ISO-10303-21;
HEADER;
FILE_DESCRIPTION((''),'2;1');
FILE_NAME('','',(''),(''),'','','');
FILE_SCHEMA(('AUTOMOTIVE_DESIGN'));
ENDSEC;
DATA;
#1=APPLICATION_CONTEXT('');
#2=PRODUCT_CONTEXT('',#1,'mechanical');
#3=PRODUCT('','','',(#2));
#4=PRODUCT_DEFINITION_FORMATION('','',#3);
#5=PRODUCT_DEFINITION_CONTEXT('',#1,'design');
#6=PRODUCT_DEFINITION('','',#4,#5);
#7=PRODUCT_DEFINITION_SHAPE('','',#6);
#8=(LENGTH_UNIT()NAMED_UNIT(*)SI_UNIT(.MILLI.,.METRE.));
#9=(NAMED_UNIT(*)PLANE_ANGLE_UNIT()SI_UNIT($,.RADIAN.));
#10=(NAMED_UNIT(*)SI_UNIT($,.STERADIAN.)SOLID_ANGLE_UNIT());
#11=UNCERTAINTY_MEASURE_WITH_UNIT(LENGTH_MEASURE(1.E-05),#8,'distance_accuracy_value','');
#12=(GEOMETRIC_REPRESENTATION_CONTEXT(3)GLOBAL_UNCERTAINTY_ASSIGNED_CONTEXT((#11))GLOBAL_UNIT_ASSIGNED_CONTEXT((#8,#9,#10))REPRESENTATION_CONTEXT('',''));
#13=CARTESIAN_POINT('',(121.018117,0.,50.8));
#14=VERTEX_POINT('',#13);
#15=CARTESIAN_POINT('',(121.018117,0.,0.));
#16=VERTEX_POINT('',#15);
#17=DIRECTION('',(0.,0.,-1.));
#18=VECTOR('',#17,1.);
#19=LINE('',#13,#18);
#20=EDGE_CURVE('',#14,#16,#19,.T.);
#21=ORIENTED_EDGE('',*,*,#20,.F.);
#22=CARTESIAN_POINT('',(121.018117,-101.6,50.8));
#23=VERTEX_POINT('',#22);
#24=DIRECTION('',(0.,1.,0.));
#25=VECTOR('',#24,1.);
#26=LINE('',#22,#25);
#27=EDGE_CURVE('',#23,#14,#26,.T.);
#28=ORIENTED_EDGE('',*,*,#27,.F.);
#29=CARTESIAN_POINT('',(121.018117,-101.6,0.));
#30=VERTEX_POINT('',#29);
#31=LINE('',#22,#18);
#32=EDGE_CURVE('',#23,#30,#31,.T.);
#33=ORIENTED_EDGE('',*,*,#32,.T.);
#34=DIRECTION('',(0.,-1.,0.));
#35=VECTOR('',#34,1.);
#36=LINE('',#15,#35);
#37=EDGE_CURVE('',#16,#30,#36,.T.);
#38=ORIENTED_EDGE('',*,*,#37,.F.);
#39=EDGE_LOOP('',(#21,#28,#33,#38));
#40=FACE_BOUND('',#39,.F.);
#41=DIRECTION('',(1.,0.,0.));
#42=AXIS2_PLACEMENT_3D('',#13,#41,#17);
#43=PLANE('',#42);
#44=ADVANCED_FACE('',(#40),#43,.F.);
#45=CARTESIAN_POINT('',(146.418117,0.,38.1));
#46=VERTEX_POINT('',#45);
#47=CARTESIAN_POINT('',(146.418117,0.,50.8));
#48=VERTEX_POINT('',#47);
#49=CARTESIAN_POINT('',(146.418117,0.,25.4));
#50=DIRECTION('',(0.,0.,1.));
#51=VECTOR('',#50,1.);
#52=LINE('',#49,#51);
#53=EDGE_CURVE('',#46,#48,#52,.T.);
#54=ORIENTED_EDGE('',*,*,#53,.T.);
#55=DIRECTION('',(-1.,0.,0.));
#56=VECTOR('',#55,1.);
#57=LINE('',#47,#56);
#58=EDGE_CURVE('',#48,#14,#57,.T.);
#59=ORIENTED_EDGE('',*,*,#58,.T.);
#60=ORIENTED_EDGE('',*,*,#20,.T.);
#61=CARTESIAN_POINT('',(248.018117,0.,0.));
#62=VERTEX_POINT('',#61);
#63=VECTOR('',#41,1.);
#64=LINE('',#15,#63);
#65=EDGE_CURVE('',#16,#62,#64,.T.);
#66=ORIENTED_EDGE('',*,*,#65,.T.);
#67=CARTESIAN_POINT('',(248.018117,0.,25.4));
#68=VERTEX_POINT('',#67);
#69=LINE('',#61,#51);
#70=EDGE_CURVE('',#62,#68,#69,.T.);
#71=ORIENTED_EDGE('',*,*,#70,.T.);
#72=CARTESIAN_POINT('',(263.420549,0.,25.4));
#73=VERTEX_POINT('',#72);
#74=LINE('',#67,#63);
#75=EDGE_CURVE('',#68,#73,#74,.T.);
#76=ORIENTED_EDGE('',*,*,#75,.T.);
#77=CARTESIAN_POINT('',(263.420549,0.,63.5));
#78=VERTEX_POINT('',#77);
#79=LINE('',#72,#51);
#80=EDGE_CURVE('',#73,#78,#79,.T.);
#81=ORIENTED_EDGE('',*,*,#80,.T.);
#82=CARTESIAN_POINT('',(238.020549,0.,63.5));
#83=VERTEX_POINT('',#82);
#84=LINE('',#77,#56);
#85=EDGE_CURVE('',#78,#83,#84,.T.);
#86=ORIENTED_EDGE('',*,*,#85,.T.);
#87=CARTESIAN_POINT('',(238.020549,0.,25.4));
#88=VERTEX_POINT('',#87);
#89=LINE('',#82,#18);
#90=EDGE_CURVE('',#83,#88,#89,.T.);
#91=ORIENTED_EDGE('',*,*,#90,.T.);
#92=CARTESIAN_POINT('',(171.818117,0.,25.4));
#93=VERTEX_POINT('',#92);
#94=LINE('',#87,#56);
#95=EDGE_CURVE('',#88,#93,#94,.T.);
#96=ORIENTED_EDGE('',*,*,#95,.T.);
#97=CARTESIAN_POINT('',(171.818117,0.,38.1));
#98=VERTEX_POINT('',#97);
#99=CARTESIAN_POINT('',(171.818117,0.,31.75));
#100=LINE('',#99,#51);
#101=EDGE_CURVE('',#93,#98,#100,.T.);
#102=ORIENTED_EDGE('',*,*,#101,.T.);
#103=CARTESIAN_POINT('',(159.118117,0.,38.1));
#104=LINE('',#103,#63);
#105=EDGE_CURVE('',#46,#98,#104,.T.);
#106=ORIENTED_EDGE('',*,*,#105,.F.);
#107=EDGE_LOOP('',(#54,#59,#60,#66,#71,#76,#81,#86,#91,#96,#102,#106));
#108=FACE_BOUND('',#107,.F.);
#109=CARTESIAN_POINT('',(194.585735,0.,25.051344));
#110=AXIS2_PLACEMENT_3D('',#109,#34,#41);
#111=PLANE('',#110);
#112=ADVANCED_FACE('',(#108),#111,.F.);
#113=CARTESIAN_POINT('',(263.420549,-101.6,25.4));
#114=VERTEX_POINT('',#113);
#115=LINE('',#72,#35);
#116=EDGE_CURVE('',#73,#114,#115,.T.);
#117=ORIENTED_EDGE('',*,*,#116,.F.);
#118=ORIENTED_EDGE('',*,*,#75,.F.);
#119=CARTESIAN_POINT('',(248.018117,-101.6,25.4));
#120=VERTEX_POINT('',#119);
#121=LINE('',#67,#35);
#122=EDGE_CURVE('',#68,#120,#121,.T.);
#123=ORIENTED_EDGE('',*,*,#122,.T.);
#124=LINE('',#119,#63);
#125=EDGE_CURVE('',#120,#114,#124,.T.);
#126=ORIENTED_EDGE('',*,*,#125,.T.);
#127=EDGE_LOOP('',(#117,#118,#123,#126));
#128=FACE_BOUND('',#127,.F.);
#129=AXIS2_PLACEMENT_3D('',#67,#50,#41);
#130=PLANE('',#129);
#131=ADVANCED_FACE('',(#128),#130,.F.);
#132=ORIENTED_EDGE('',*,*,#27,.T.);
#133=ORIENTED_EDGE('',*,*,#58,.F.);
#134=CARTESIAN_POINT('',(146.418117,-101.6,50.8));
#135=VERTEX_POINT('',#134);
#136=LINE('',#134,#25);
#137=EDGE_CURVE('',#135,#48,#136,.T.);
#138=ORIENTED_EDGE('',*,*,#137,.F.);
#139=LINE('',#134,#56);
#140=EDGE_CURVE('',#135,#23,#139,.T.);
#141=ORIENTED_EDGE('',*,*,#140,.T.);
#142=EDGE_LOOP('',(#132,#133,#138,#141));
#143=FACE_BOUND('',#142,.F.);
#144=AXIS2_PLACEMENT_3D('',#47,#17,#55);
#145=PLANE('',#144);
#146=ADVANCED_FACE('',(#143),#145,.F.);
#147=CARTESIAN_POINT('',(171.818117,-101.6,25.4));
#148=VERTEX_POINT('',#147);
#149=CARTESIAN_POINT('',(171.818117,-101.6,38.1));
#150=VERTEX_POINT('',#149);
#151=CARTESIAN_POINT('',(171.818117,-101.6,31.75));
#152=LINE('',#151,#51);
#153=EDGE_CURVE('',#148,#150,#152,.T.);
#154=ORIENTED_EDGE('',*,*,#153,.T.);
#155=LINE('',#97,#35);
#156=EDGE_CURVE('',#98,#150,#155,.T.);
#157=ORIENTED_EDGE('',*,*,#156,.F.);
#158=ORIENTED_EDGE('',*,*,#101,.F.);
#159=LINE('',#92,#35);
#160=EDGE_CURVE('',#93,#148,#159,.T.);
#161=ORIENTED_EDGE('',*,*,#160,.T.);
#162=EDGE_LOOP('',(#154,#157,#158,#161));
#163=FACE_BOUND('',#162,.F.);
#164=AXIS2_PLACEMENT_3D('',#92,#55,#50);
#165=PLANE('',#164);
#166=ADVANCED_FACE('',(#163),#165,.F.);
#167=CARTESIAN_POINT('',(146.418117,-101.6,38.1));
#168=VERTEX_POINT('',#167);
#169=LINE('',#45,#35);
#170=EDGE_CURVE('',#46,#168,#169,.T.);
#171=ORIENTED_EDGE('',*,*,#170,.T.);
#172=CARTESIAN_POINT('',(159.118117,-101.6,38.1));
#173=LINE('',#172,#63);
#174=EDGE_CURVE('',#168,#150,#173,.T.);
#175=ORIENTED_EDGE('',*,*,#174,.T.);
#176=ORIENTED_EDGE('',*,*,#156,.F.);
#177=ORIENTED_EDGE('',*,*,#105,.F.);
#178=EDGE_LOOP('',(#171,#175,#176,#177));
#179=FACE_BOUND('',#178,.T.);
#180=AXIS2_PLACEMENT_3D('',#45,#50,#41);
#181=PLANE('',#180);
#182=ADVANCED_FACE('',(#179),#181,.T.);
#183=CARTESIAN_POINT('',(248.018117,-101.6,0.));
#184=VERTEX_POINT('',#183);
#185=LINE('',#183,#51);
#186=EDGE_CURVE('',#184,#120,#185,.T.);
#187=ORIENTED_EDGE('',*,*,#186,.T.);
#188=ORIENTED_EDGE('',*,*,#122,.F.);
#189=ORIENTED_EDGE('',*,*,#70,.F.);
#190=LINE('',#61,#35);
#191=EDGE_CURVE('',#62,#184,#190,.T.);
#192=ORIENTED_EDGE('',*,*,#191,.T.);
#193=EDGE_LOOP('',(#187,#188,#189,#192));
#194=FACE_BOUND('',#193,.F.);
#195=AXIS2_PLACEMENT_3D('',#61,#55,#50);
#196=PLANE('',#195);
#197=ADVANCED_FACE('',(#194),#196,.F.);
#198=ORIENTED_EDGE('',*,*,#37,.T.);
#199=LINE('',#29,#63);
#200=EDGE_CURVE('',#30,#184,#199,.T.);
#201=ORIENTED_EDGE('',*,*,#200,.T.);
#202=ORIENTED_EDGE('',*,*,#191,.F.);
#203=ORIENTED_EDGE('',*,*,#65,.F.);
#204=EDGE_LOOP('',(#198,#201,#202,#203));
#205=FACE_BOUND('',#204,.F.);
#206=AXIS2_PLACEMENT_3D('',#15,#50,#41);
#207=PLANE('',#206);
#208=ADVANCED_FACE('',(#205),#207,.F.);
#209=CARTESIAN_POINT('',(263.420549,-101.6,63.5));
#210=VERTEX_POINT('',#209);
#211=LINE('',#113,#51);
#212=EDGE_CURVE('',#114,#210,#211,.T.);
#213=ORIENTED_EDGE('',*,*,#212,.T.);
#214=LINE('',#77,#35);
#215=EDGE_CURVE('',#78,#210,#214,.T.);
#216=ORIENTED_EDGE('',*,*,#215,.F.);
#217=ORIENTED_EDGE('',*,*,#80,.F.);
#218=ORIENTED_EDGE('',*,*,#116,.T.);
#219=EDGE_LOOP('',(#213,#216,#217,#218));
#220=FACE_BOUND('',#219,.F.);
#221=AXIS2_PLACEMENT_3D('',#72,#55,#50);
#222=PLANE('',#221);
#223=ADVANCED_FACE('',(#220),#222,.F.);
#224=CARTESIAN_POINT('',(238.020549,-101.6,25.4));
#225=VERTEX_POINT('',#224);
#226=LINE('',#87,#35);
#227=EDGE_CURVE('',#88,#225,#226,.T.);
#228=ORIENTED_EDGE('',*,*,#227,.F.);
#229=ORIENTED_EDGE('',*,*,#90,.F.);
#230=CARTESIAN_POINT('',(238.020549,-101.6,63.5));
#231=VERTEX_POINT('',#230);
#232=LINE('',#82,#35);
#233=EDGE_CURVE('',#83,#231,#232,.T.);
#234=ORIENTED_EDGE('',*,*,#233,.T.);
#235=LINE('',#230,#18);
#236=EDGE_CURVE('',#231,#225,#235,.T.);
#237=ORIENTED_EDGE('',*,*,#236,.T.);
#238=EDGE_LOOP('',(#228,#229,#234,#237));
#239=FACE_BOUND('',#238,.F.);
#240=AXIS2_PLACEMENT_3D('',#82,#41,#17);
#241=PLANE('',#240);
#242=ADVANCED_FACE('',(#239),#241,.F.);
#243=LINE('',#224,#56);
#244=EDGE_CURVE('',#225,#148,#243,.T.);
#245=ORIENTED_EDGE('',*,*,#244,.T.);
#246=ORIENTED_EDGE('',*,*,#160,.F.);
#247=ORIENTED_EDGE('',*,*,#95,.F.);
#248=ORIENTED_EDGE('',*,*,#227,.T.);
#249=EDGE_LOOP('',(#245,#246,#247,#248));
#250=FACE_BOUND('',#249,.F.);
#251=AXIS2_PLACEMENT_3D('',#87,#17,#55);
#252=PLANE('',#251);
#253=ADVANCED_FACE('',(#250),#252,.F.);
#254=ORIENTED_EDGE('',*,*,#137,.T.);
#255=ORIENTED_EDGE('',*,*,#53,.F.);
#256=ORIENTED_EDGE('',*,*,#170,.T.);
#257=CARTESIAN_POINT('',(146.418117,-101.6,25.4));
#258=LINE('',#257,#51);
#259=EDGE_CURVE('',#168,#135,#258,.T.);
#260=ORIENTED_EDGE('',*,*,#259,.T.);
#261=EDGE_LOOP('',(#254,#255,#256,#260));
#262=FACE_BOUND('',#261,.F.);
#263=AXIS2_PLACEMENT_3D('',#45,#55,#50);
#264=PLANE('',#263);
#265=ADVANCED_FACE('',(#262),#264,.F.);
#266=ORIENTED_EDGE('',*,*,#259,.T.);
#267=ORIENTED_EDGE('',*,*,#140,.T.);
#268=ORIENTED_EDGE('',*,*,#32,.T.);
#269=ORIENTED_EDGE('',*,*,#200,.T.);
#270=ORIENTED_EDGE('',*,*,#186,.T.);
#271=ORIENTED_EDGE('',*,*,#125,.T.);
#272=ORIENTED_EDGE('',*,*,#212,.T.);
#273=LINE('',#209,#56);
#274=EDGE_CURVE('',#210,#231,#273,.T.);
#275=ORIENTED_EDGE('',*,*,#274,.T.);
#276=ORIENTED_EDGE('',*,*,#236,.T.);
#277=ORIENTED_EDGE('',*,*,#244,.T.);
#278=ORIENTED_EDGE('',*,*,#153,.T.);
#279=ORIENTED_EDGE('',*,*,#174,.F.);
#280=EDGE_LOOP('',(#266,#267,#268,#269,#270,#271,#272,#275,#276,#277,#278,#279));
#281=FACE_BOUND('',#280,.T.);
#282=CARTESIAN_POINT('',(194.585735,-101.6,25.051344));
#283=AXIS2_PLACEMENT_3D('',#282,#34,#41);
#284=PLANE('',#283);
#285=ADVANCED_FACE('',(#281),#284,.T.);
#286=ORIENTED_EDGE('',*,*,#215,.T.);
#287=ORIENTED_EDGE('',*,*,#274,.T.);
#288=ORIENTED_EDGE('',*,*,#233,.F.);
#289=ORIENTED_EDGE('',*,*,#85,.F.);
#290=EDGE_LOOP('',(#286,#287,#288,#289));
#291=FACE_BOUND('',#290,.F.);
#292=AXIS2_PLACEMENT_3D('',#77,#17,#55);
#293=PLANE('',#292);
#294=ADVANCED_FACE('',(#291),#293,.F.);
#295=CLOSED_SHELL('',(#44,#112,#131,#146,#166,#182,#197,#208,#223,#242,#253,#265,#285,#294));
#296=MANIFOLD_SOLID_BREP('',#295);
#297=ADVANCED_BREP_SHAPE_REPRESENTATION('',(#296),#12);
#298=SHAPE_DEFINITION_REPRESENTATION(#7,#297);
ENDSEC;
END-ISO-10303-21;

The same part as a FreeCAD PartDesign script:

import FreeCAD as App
import Part
import Sketcher
from FreeCAD import Vector
Q = App.Units.Quantity


def add_polygon(sketch, points):
    """Adds a closed chain of lines whose ends are joined by coincident constraints."""
    first, n = sketch.GeometryCount, len(points)
    for a, b in zip(points, points[1:] + points[:1]):
        sketch.addGeometry(Part.LineSegment(App.Vector(*a, 0), App.Vector(*b, 0)), False)
    for i in range(n):
        sketch.addConstraint(Sketcher.Constraint("Coincident", first + i, 2, first + (i + 1) % n, 1))

doc = App.newDocument("Part")
body = doc.addObject("PartDesign::Body", "Body")

sketch1 = body.newObject("Sketcher::SketchObject", "Sketch")
sketch1.AttachmentSupport = (doc.getObject("XZ_Plane"), [""])
sketch1.MapMode = "FlatFace"
add_polygon(sketch1, [(121, 51), (121, 0), (248, 0), (248, 25), (263, 25), (263, 64), (238, 64), (238, 25), (172, 25), (172, 38), (146, 38), (146, 51)])
sketch1.addConstraint([
    Sketcher.Constraint("Vertical", 0),
    Sketcher.Constraint("Horizontal", 1),
    Sketcher.Constraint("Vertical", 2),
    Sketcher.Constraint("Horizontal", 3),
    Sketcher.Constraint("Vertical", 4),
    Sketcher.Constraint("Horizontal", 5),
    Sketcher.Constraint("Vertical", 6),
    Sketcher.Constraint("Horizontal", 7),
    Sketcher.Constraint("Vertical", 8),
    Sketcher.Constraint("Horizontal", 9),
    Sketcher.Constraint("Vertical", 10),
    Sketcher.Constraint("Horizontal", 11),
    Sketcher.Constraint("PointOnObject", 0, 2, -1),
    Sketcher.Constraint("Horizontal", 3, 2, 6, 2),
    Sketcher.Constraint("Equal", 5, 9),
    Sketcher.Constraint("Equal", 9, 11),
    Sketcher.Constraint("Equal", 11, 2),
    Sketcher.Constraint("Equal", 8, 10),
    Sketcher.Constraint("DistanceX", 1, 1, 1, 2, Q("5 in")),
    Sketcher.Constraint("DistanceX", 5, 2, 5, 1, Q("1 in")),
    Sketcher.Constraint("DistanceY", 0, 2, 0, 1, Q("2 in")),
    Sketcher.Constraint("DistanceY", 4, 1, 4, 2, Q("1.5 in")),
    Sketcher.Constraint("DistanceX", 7, 2, 7, 1, Q("66.202432 mm")),
    Sketcher.Constraint("DistanceX", -1, 1, 3, 2, Q("263.420549 mm")),
])
pad1 = body.newObject("PartDesign::Pad", "Pad")
pad1.Profile = sketch1
pad1.Length = Q("4 in")

sketch2 = body.newObject("Sketcher::SketchObject", "Sketch001")
sketch2.AttachmentSupport = (doc.getObject("XZ_Plane"), [""])
sketch2.MapMode = "FlatFace"
add_polygon(sketch2, [(121, 51), (121, 0), (248, 0), (248, 25), (263, 25), (263, 64), (238, 64), (238, 25), (172, 25), (172, 38), (146, 38), (146, 51)])
sketch2.addConstraint([
    Sketcher.Constraint("Vertical", 0),
    Sketcher.Constraint("Horizontal", 1),
    Sketcher.Constraint("Vertical", 2),
    Sketcher.Constraint("Horizontal", 3),
    Sketcher.Constraint("Vertical", 4),
    Sketcher.Constraint("Horizontal", 5),
    Sketcher.Constraint("Vertical", 6),
    Sketcher.Constraint("Horizontal", 7),
    Sketcher.Constraint("Vertical", 8),
    Sketcher.Constraint("Horizontal", 9),
    Sketcher.Constraint("Vertical", 10),
    Sketcher.Constraint("Horizontal", 11),
    Sketcher.Constraint("PointOnObject", 0, 2, -1),
    Sketcher.Constraint("Horizontal", 3, 2, 6, 2),
    Sketcher.Constraint("Equal", 5, 9),
    Sketcher.Constraint("Equal", 9, 11),
    Sketcher.Constraint("Equal", 11, 2),
    Sketcher.Constraint("Equal", 8, 10),
    Sketcher.Constraint("DistanceX", 1, 1, 1, 2, Q("5 in")),
    Sketcher.Constraint("DistanceX", 5, 2, 5, 1, Q("1 in")),
    Sketcher.Constraint("DistanceY", 0, 2, 0, 1, Q("2 in")),
    Sketcher.Constraint("DistanceY", 4, 1, 4, 2, Q("1.5 in")),
    Sketcher.Constraint("DistanceX", 7, 2, 7, 1, Q("66.202432 mm")),
    Sketcher.Constraint("DistanceX", -1, 1, 3, 2, Q("263.420549 mm")),
])
pad2 = body.newObject("PartDesign::Pad", "Pad001")
pad2.Profile = sketch2
pad2.Length = Q("1 in")

doc.recompute()
